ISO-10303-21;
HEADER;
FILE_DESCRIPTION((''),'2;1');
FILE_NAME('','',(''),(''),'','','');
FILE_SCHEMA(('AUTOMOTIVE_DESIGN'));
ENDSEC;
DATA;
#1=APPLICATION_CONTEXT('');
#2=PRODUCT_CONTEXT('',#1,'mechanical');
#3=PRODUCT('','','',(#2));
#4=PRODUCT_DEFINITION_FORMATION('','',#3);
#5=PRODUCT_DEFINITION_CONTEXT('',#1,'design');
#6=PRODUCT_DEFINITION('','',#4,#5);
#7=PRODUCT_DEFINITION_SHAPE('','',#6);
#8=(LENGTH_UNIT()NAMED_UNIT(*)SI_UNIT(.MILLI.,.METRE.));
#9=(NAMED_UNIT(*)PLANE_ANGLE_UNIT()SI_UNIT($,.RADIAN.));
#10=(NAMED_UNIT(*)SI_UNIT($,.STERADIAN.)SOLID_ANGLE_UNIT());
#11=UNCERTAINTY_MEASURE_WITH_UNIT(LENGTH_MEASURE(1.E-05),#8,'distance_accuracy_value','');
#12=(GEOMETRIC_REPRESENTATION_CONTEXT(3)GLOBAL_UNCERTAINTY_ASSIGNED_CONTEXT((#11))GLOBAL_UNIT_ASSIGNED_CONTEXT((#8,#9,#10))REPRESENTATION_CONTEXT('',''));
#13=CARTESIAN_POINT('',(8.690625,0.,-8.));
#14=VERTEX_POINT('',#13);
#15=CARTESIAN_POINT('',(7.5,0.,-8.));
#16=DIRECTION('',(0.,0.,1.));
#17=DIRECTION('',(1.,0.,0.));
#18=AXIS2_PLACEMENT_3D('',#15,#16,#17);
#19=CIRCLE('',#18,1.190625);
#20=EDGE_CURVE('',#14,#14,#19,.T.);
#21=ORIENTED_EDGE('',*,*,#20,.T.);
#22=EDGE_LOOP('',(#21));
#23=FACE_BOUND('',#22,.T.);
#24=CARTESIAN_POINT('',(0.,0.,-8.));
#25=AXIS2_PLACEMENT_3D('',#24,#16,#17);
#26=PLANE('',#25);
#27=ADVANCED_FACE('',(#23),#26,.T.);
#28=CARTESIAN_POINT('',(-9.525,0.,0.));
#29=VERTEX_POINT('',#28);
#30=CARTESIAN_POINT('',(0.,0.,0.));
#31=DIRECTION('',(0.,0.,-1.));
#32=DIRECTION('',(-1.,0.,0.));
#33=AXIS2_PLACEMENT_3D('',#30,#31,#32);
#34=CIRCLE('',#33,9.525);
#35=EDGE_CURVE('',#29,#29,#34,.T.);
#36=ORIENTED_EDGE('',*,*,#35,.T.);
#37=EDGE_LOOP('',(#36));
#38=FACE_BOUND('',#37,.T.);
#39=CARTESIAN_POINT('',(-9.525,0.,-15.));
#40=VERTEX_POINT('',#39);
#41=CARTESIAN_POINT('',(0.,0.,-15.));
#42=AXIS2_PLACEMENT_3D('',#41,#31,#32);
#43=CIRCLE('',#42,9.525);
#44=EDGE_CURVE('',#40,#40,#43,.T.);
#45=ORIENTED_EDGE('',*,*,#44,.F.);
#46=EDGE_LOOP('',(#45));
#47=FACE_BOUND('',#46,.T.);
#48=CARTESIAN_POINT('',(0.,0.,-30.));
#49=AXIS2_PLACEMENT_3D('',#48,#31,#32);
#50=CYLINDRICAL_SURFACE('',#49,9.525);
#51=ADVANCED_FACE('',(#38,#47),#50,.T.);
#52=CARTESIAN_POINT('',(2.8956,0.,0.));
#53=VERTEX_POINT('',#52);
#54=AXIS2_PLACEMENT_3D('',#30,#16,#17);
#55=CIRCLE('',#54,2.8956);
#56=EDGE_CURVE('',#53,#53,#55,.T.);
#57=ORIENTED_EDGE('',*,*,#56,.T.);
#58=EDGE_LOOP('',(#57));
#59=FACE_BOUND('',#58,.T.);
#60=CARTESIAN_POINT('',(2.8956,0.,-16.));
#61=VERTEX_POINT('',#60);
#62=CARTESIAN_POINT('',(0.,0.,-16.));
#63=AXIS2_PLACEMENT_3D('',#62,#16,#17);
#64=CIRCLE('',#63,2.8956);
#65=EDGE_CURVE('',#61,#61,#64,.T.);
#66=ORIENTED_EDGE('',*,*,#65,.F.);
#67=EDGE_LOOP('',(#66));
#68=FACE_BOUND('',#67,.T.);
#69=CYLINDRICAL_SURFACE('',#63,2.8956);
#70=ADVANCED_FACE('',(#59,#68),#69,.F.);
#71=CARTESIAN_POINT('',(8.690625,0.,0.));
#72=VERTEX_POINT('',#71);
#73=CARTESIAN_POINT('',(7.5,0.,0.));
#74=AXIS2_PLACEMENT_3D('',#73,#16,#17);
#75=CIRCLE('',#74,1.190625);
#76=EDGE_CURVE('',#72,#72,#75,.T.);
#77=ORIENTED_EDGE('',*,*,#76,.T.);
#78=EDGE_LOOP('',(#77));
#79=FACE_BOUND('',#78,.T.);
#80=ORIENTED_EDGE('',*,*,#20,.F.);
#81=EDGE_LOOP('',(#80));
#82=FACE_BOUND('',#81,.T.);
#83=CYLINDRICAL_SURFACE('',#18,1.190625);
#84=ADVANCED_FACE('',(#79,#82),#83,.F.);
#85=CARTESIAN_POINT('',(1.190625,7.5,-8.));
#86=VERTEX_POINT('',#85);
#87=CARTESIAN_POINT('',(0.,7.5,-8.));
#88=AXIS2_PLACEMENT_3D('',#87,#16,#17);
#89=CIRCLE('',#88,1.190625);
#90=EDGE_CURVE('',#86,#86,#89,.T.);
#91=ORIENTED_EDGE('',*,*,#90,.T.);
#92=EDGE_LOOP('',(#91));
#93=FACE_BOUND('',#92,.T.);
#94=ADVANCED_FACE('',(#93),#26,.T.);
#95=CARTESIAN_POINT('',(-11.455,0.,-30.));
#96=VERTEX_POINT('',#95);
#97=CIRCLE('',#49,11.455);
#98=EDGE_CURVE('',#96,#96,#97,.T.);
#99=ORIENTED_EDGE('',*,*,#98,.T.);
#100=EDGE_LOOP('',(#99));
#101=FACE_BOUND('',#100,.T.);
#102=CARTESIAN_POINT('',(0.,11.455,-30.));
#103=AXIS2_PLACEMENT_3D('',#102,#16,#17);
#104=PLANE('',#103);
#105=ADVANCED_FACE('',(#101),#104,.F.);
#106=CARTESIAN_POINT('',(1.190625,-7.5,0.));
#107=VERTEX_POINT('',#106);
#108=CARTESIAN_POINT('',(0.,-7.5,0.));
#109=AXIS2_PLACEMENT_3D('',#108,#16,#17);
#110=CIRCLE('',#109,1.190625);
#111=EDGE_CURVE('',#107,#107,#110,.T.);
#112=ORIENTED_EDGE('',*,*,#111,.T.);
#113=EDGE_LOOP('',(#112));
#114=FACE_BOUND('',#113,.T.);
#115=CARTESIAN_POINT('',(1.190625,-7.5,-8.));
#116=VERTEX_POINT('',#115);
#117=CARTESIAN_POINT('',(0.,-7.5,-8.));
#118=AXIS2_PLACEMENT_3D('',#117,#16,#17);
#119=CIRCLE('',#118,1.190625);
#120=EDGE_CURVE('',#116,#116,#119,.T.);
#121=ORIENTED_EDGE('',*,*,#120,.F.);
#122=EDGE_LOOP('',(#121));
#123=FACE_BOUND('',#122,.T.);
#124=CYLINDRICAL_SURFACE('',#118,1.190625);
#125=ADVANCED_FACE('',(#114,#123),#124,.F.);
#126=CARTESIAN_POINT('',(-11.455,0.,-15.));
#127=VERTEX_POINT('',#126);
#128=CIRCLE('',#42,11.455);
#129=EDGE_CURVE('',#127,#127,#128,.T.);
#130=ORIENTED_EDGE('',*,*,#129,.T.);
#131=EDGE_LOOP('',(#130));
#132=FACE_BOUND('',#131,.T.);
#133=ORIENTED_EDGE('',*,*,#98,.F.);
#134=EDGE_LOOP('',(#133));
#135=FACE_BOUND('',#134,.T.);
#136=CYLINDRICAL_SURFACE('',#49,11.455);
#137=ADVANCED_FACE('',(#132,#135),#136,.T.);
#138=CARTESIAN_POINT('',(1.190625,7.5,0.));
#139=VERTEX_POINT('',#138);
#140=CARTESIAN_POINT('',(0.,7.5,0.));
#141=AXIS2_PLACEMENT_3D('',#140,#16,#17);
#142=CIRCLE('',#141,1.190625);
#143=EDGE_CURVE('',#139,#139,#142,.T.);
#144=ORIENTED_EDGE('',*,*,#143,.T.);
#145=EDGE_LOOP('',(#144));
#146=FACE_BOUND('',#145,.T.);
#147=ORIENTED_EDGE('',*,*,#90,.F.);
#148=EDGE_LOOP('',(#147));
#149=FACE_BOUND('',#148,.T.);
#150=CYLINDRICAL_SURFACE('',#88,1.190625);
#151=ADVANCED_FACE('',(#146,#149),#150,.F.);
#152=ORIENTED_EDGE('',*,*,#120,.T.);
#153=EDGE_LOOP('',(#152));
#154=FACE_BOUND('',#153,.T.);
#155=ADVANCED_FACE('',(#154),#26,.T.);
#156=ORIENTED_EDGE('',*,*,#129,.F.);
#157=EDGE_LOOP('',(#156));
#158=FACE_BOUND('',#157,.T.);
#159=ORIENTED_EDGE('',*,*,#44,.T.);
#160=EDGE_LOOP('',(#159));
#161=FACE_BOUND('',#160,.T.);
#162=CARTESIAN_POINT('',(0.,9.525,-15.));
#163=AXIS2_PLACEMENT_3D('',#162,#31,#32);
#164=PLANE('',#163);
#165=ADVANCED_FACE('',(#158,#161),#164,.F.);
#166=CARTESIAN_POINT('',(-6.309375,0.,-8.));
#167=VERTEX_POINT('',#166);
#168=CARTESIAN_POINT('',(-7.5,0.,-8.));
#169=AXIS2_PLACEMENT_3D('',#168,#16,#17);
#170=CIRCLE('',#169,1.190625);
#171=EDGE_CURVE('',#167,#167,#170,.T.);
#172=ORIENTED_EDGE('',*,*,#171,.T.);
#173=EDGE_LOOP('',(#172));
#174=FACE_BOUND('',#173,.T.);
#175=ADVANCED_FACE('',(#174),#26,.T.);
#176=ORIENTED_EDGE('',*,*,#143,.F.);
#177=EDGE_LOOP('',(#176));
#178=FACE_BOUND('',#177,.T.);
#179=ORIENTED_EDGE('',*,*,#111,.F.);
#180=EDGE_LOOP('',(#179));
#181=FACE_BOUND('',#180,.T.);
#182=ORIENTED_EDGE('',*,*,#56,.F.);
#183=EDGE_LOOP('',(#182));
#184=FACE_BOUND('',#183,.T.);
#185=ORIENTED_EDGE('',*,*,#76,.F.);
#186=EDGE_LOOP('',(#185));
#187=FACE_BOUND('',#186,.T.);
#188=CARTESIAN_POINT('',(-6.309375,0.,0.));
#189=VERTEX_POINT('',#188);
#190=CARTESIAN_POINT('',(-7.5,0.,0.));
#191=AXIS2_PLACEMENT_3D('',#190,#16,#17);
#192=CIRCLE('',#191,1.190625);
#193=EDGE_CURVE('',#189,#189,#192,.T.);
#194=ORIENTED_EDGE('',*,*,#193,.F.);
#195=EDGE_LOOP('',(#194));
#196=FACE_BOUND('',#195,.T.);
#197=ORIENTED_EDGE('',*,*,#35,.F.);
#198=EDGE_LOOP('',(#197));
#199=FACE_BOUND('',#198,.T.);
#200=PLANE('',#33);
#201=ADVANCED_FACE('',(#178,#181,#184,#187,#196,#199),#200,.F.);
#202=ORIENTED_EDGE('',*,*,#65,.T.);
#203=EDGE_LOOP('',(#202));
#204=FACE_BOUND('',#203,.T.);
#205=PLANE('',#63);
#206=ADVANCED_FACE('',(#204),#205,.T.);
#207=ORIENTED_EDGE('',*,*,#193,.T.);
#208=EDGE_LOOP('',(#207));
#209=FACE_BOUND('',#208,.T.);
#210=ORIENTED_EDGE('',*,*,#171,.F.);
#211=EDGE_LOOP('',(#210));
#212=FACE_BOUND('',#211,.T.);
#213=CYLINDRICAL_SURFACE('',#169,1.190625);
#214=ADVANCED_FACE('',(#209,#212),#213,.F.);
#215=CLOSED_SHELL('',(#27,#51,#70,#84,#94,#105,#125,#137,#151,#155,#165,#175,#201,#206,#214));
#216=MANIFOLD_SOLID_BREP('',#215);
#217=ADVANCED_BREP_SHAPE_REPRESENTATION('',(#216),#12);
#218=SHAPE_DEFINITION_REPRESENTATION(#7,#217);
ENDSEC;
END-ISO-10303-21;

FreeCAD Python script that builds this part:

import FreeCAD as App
import Part
import Sketcher
from FreeCAD import Vector
Q = App.Units.Quantity


def add_polygon(sketch, points):
    """Adds a closed chain of lines whose ends are joined by coincident constraints."""
    first, n = sketch.GeometryCount, len(points)
    for a, b in zip(points, points[1:] + points[:1]):
        sketch.addGeometry(Part.LineSegment(App.Vector(*a, 0), App.Vector(*b, 0)), False)
    for i in range(n):
        sketch.addConstraint(Sketcher.Constraint("Coincident", first + i, 2, first + (i + 1) % n, 1))

doc = App.newDocument("Part")
body = doc.addObject("PartDesign::Body", "Body")

# Sketch on YZ plane
sketch1 = body.newObject("Sketcher::SketchObject", "Sketch")
sketch1.AttachmentSupport = (doc.getObject("YZ_Plane"), [""])
sketch1.MapMode = "FlatFace"
add_polygon(sketch1, [(9.5, 0), (0, 0), (0, -30), (11.5, -30), (11.5, -15), (9.5, -15)])  # lines 0-5
sketch1.addConstraint(Sketcher.Constraint("Horizontal", 0))
sketch1.addConstraint(Sketcher.Constraint("Vertical", 1))
sketch1.addConstraint(Sketcher.Constraint("Horizontal", 2))
sketch1.addConstraint(Sketcher.Constraint("Vertical", 3))
sketch1.addConstraint(Sketcher.Constraint("Horizontal", 4))
sketch1.addConstraint(Sketcher.Constraint("Vertical", 5))
sketch1.addConstraint(Sketcher.Constraint("Coincident", 0, 2, -1, 1))
sketch1.addConstraint(Sketcher.Constraint("Equal", 3, 5))
sketch1.addConstraint(Sketcher.Constraint("DistanceY", 1, 2, 1, 1, Q("30 mm")))
sketch1.addConstraint(Sketcher.Constraint("DistanceX", 4, 2, 4, 1, Q("1.93 mm")))
sketch1.addConstraint(Sketcher.Constraint("DistanceX", 0, 2, 0, 1, Q("9.525 mm")))
revolution = body.newObject("PartDesign::Revolution", "Revolution")
revolution.Profile = sketch1
revolution.ReferenceAxis = (sketch1, ["V_Axis"])
revolution.Angle = 360

# Sketch on XY plane
sketch2 = body.newObject("Sketcher::SketchObject", "Sketch001")
sketch2.AttachmentSupport = (doc.getObject("XY_Plane"), [""])
sketch2.MapMode = "FlatFace"
sketch2.addGeometry(Part.Circle(Vector(-7.5, 0, 0), Vector(0, 0, 1), 1.2), False)
sketch2.addGeometry(Part.Circle(Vector(0, -7.5, 0), Vector(0, 0, 1), 1.2), False)
sketch2.addGeometry(Part.Circle(Vector(0, 7.5, 0), Vector(0, 0, 1), 1.2), False)
sketch2.addGeometry(Part.Circle(Vector(7.5, 0, 0), Vector(0, 0, 1), 1.2), False)
sketch2.addConstraint(Sketcher.Constraint("Equal", 0, 1))
sketch2.addConstraint(Sketcher.Constraint("Equal", 1, 2))
sketch2.addConstraint(Sketcher.Constraint("Equal", 2, 3))
sketch2.addConstraint(Sketcher.Constraint("Symmetric", 1, 3, 2, 3, -1, 1))
sketch2.addConstraint(Sketcher.Constraint("Symmetric", 0, 3, 3, 3, -1, 1))
sketch2.addConstraint(Sketcher.Constraint("PointOnObject", 0, 3, -1))
sketch2.addConstraint(Sketcher.Constraint("PointOnObject", 1, 3, -2))
sketch2.addConstraint(Sketcher.Constraint("DistanceY", 1, 3, 2, 3, Q("15 mm")))
sketch2.addConstraint(Sketcher.Constraint("DistanceX", 0, 3, 3, 3, Q("15 mm")))
sketch2.addConstraint(Sketcher.Constraint("Diameter", 0, Q("2.38125 mm")))
pocket1 = body.newObject("PartDesign::Pocket", "Pocket")
pocket1.Profile = sketch2
pocket1.Length = 8

# Sketch on XY plane
sketch3 = body.newObject("Sketcher::SketchObject", "Sketch002")
sketch3.AttachmentSupport = (doc.getObject("XY_Plane"), [""])
sketch3.MapMode = "FlatFace"
sketch3.addGeometry(Part.Circle(Vector(0, 0, 0), Vector(0, 0, 1), 2.9), False)
sketch3.addConstraint(Sketcher.Constraint("Coincident", 0, 3, -1, 1))
sketch3.addConstraint(Sketcher.Constraint("Diameter", 0, Q("5.7912 mm")))
pocket2 = body.newObject("PartDesign::Pocket", "Pocket001")
pocket2.Profile = sketch3
pocket2.Length = 16

doc.recompute()
